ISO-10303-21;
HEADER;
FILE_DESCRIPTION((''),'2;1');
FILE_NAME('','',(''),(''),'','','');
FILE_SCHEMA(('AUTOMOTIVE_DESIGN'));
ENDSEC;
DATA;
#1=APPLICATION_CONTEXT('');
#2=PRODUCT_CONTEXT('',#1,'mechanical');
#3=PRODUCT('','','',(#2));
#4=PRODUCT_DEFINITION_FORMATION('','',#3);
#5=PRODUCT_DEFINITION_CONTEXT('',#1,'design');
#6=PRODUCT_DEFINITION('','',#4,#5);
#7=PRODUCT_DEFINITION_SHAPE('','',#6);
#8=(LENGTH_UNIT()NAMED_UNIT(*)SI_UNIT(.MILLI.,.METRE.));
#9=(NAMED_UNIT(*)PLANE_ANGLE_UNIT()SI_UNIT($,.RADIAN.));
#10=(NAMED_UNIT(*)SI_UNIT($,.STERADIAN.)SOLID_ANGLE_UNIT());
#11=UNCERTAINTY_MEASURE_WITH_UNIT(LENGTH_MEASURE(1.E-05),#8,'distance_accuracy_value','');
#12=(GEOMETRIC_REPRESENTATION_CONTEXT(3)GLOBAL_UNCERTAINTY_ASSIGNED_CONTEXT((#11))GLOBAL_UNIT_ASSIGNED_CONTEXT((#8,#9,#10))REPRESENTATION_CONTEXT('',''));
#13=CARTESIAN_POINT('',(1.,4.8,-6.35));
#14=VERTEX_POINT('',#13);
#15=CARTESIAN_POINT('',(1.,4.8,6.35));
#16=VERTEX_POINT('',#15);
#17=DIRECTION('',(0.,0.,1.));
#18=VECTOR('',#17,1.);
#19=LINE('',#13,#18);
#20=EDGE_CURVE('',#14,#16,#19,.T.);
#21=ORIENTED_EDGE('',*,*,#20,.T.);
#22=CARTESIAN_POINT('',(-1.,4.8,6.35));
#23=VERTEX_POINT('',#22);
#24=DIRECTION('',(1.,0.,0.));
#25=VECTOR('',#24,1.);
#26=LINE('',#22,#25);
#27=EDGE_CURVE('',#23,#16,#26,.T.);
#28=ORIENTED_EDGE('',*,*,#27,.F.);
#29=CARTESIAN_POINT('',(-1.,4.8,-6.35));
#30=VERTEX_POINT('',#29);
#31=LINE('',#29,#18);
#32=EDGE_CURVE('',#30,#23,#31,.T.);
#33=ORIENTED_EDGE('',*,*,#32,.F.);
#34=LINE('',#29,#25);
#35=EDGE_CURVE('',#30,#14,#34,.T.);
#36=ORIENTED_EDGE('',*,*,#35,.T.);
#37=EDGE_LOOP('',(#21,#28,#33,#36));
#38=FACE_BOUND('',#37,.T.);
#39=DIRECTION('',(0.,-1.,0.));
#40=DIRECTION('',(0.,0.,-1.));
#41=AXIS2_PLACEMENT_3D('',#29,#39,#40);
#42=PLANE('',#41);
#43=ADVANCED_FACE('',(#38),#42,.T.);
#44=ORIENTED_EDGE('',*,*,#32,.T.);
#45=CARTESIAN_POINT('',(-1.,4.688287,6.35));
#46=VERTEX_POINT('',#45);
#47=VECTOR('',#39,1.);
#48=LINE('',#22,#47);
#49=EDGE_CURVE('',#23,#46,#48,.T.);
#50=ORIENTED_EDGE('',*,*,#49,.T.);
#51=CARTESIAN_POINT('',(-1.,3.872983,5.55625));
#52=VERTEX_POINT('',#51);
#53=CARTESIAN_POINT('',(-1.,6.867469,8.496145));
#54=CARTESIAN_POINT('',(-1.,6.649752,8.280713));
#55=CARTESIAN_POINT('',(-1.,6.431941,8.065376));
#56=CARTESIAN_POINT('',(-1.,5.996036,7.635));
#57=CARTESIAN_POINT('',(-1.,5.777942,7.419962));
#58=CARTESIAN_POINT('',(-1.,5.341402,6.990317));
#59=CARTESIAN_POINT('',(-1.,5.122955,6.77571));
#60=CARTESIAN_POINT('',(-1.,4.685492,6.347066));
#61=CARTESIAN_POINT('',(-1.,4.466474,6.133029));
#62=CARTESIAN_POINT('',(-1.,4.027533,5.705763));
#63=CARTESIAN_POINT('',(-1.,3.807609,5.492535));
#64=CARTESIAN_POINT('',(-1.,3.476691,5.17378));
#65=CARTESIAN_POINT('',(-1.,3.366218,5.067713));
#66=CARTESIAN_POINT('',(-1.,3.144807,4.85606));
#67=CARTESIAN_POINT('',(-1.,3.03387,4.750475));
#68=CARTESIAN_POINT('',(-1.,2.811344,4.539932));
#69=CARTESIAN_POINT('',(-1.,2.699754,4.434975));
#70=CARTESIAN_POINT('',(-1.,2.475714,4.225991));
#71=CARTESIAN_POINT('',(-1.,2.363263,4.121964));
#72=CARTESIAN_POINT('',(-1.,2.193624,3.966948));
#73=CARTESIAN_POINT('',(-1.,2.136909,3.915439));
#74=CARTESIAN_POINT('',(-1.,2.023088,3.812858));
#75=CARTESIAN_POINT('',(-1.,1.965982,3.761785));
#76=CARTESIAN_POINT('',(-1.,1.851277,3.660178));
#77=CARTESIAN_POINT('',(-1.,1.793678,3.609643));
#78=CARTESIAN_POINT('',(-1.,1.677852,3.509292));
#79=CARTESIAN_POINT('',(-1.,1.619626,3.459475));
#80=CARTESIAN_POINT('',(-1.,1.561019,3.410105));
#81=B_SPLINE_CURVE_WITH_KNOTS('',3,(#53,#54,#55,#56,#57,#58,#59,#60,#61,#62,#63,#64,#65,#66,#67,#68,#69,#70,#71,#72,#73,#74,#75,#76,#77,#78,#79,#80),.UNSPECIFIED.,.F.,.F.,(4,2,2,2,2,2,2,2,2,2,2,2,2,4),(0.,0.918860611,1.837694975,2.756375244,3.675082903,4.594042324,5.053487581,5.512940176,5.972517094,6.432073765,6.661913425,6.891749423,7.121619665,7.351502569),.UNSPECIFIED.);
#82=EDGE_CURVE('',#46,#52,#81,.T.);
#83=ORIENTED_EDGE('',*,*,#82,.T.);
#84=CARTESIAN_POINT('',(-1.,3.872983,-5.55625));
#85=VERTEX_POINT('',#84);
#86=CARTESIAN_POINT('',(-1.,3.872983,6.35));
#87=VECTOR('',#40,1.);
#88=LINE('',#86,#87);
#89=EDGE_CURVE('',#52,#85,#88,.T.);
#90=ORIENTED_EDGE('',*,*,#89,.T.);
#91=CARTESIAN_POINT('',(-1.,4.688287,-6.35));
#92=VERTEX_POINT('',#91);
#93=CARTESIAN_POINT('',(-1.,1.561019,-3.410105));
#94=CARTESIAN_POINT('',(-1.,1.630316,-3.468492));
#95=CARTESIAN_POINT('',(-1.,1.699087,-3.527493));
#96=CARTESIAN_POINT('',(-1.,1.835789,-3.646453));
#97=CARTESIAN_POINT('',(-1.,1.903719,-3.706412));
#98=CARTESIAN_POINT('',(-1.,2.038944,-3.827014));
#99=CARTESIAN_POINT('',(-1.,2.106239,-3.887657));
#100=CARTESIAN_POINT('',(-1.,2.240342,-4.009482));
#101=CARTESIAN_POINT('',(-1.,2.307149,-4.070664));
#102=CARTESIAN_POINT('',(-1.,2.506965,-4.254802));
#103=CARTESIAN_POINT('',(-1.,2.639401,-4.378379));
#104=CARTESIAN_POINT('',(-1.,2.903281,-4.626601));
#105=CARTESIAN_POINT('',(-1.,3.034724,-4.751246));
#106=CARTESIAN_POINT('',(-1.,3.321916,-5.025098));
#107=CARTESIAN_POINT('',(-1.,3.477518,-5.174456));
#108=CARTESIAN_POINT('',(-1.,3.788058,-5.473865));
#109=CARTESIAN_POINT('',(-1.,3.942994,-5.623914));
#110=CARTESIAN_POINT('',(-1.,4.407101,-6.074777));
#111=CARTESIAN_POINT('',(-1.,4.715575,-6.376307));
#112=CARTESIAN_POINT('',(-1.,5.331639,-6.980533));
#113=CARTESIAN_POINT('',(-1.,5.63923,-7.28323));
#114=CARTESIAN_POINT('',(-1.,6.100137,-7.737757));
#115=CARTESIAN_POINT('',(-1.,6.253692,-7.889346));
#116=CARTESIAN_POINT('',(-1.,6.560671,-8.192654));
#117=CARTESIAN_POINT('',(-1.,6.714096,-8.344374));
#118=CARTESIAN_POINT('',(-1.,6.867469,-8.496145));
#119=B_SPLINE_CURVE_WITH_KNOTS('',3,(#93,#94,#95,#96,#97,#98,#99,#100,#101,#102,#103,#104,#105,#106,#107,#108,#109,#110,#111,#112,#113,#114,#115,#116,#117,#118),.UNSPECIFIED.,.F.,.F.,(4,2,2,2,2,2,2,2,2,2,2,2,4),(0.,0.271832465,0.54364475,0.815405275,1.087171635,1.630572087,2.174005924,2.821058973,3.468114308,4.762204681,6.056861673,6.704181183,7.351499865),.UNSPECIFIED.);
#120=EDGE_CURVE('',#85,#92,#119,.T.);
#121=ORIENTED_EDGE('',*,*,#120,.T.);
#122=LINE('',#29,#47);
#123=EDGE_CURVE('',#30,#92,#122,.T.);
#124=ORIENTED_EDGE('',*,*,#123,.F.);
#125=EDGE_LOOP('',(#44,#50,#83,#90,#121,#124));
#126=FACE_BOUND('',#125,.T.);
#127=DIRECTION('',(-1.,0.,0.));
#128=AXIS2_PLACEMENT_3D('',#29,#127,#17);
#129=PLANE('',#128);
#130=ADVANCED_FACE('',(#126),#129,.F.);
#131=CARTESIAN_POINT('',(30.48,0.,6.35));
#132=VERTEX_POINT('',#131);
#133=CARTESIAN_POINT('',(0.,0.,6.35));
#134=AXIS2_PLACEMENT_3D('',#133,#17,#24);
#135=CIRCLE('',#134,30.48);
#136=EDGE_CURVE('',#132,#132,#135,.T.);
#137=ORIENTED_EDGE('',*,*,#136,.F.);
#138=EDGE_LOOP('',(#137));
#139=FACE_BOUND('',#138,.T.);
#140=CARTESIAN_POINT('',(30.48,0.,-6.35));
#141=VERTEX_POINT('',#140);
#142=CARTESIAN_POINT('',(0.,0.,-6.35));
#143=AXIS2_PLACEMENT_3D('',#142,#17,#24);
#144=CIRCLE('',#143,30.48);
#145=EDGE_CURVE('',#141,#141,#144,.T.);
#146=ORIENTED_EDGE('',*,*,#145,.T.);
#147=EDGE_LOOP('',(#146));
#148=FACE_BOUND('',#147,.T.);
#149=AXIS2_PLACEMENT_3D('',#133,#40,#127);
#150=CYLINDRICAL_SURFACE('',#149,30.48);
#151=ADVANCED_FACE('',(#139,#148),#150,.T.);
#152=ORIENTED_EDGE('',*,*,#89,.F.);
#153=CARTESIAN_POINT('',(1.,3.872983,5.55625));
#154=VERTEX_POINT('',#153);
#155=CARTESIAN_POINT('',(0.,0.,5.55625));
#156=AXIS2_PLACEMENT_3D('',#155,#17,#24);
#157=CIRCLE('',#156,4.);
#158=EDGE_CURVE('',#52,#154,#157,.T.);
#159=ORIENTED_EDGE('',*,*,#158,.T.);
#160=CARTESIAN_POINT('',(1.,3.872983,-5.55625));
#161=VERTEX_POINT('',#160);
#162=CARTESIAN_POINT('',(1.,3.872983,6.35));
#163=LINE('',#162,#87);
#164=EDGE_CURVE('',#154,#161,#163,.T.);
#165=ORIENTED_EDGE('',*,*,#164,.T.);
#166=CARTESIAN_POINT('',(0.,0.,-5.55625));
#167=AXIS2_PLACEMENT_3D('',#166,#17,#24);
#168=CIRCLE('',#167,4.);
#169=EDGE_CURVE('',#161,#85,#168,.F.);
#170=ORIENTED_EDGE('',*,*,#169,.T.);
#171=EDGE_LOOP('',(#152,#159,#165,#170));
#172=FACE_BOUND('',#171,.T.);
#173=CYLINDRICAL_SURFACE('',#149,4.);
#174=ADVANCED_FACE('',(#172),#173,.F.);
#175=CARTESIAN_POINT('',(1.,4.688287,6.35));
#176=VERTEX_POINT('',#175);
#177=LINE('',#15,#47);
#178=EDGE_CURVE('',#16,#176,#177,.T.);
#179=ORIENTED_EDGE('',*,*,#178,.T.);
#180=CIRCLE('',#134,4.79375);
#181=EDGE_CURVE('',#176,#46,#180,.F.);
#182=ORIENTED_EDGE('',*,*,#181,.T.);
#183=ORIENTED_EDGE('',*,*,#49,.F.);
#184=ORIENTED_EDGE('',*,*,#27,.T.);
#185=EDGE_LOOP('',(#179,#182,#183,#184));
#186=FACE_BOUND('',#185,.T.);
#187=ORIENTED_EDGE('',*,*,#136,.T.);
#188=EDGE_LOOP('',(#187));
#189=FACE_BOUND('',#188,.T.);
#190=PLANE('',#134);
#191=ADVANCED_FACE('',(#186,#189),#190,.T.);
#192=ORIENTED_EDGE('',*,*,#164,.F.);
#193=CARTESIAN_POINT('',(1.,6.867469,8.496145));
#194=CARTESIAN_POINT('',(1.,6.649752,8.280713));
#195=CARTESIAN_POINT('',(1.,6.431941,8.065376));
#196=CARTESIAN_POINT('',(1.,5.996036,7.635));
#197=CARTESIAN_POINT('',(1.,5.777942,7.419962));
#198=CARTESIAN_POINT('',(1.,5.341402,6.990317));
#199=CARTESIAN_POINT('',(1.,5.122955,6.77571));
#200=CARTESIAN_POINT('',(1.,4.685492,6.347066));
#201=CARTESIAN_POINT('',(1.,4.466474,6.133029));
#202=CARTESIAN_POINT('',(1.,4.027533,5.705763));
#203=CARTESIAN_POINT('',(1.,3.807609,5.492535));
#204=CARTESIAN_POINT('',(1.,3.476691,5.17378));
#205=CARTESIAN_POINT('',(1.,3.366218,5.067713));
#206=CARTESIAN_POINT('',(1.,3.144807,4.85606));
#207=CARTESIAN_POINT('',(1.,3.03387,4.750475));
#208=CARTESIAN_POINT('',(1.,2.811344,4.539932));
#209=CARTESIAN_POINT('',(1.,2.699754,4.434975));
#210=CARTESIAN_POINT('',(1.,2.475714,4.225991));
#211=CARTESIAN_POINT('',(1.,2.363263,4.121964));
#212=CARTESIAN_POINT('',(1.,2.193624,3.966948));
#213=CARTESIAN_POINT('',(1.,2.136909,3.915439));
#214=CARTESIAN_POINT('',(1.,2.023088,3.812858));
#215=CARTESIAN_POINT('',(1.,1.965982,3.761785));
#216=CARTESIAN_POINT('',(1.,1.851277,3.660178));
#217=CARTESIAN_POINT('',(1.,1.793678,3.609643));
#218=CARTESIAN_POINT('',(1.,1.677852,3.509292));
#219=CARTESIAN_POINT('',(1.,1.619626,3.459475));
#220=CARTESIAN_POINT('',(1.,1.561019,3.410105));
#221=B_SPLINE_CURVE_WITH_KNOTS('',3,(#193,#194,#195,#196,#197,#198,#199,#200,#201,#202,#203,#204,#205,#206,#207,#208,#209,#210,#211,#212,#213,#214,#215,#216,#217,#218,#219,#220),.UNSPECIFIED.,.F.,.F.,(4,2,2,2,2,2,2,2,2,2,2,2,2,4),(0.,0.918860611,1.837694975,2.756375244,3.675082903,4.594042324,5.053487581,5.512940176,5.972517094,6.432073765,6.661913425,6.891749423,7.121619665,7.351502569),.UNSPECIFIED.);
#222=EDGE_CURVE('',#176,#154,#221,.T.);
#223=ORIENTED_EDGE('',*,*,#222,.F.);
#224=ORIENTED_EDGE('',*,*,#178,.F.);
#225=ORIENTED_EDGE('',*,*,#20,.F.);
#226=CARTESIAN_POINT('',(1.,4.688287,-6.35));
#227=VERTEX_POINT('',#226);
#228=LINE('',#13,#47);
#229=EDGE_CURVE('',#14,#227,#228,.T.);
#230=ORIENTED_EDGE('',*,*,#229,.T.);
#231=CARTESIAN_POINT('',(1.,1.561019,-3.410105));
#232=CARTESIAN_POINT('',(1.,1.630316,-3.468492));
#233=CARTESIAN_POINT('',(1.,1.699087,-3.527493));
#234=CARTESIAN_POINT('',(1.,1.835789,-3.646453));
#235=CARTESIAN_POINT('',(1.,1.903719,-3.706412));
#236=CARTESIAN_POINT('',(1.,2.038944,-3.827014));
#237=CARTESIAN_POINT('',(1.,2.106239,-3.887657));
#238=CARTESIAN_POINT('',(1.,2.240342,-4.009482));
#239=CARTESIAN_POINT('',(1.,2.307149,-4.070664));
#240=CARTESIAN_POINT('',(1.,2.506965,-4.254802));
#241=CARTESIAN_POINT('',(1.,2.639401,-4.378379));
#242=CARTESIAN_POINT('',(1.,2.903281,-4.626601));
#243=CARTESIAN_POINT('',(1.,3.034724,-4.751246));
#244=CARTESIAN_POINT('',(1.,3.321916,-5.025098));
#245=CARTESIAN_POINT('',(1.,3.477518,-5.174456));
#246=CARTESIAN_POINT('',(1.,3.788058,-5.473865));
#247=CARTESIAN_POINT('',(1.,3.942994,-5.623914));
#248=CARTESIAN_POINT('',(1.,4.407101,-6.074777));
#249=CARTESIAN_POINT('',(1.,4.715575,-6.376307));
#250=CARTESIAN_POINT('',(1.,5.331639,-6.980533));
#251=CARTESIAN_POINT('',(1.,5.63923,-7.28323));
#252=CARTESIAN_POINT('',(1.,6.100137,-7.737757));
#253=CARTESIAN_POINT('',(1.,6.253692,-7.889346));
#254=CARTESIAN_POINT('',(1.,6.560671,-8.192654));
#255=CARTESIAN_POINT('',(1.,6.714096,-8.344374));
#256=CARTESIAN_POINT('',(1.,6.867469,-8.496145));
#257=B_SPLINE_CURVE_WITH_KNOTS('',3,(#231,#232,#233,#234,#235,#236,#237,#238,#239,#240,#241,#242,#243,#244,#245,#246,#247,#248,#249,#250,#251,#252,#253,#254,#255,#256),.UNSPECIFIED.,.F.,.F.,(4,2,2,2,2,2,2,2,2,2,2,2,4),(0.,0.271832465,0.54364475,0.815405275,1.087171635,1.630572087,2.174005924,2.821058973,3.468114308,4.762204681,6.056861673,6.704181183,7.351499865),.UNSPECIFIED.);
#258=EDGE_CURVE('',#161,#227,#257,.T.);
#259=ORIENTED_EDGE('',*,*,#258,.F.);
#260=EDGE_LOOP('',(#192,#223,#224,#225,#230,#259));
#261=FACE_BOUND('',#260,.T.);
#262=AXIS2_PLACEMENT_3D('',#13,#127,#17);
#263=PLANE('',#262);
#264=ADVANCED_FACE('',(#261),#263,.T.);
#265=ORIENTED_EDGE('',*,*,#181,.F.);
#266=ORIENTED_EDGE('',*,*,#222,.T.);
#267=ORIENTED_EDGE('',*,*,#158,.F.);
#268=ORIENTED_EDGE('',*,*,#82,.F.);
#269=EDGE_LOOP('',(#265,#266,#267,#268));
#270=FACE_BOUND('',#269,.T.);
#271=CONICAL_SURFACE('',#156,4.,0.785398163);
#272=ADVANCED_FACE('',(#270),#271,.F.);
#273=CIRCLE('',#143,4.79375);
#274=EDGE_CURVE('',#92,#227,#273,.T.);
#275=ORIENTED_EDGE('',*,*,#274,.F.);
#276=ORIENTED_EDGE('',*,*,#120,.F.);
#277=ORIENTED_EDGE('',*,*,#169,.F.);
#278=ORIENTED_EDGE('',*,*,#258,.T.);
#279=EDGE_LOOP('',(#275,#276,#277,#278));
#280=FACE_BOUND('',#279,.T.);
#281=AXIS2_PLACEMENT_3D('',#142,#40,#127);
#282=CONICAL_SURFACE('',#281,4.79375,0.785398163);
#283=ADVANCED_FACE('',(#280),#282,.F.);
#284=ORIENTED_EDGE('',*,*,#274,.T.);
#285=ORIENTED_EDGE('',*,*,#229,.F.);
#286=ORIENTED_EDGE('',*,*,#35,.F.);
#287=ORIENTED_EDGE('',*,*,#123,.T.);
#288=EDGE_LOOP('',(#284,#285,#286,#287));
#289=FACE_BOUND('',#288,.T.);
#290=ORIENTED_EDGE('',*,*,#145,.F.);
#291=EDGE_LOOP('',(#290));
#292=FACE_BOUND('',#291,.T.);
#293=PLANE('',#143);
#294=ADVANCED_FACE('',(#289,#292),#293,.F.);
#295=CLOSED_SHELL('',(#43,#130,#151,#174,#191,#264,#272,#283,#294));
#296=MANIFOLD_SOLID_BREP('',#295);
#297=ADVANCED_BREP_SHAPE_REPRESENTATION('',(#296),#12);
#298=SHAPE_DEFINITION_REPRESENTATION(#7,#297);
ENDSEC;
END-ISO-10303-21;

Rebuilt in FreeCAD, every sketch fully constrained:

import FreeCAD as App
import Part
import Sketcher

V = App.Vector
Q = App.Units.Quantity


def edges_at(feature, points):
    """Names of the edges that pass closest to the given points."""
    edges = feature.Shape.Edges
    near = lambda p: min(range(len(edges)), key=lambda i: edges[i].distToShape(Part.Vertex(*p))[0])
    return sorted({f"Edge{near(p) + 1}" for p in points})

doc = App.newDocument("Part")
body = doc.addObject("PartDesign::Body", "Body")

# Sketch on XY plane
sketch1 = body.newObject("Sketcher::SketchObject", "Sketch")
sketch1.AttachmentSupport = (doc.getObject("XY_Plane"), [""])
sketch1.MapMode = "FlatFace"
sketch1.addGeometry([
    Part.Circle(V(0, 0, 0), V(0, 0, 1), 30.48),
    Part.Circle(V(0, 0, 0), V(0, 0, 1), 4),
], False)
sketch1.addConstraint([
    Sketcher.Constraint("Coincident", 0, 3, -1, 1),
    Sketcher.Constraint("Coincident", 1, 3, -1, 1),
    Sketcher.Constraint("Diameter", 0, Q("2.4 in")),
    Sketcher.Constraint("Diameter", 1, Q("8 mm")),
])
pad1 = body.newObject("PartDesign::Pad", "Pad")
pad1.Profile = sketch1
pad1.Length = Q("0.5 in")
pad1.Midplane = True
doc.recompute()

chamfer = body.newObject("PartDesign::Chamfer", "Chamfer")
chamfer.Base = (pad1, edges_at(pad1, [(-4, 0, -6.35), (-4, 0, 6.35)]))
chamfer.Size = Q("0.03125 in")

# Sketch on XY plane
sketch2 = body.newObject("Sketcher::SketchObject", "Sketch001")
sketch2.AttachmentSupport = (doc.getObject("XY_Plane"), [""])
sketch2.MapMode = "FlatFace"
sketch2.AttachmentOffset = App.Placement(V(0, 0, 0.25 * 25.4), App.Rotation())
sketch2.addGeometry([
    Part.LineSegment(V(-1, 4.8, 0), V(-1, 2.8, 0)),
    Part.LineSegment(V(-1, 2.8, 0), V(1, 2.8, 0)),
    Part.LineSegment(V(1, 2.8, 0), V(1, 4.8, 0)),
    Part.LineSegment(V(1, 4.8, 0), V(-1, 4.8, 0)),
], False)
sketch2.addConstraint([
    Sketcher.Constraint("Coincident", 0, 2, 1, 1),
    Sketcher.Constraint("Coincident", 1, 2, 2, 1),
    Sketcher.Constraint("Coincident", 2, 2, 3, 1),
    Sketcher.Constraint("Coincident", 3, 2, 0, 1),
    Sketcher.Constraint("Vertical", 0),
    Sketcher.Constraint("Horizontal", 1),
    Sketcher.Constraint("Vertical", 2),
    Sketcher.Constraint("Horizontal", 3),
    Sketcher.Constraint("Equal", 3, 0),
    Sketcher.Constraint("DistanceX", 1, 1, 1, 2, Q("2 mm")),
    Sketcher.Constraint("DistanceX", 0, 2, -1, 1, Q("1 mm")),
    Sketcher.Constraint("DistanceY", -1, 1, 0, 2, Q("2.8 mm")),
])
pocket1 = body.newObject("PartDesign::Pocket", "Pocket")
pocket1.Profile = sketch2
pocket1.Type = "ThroughAll"

doc.recompute()
